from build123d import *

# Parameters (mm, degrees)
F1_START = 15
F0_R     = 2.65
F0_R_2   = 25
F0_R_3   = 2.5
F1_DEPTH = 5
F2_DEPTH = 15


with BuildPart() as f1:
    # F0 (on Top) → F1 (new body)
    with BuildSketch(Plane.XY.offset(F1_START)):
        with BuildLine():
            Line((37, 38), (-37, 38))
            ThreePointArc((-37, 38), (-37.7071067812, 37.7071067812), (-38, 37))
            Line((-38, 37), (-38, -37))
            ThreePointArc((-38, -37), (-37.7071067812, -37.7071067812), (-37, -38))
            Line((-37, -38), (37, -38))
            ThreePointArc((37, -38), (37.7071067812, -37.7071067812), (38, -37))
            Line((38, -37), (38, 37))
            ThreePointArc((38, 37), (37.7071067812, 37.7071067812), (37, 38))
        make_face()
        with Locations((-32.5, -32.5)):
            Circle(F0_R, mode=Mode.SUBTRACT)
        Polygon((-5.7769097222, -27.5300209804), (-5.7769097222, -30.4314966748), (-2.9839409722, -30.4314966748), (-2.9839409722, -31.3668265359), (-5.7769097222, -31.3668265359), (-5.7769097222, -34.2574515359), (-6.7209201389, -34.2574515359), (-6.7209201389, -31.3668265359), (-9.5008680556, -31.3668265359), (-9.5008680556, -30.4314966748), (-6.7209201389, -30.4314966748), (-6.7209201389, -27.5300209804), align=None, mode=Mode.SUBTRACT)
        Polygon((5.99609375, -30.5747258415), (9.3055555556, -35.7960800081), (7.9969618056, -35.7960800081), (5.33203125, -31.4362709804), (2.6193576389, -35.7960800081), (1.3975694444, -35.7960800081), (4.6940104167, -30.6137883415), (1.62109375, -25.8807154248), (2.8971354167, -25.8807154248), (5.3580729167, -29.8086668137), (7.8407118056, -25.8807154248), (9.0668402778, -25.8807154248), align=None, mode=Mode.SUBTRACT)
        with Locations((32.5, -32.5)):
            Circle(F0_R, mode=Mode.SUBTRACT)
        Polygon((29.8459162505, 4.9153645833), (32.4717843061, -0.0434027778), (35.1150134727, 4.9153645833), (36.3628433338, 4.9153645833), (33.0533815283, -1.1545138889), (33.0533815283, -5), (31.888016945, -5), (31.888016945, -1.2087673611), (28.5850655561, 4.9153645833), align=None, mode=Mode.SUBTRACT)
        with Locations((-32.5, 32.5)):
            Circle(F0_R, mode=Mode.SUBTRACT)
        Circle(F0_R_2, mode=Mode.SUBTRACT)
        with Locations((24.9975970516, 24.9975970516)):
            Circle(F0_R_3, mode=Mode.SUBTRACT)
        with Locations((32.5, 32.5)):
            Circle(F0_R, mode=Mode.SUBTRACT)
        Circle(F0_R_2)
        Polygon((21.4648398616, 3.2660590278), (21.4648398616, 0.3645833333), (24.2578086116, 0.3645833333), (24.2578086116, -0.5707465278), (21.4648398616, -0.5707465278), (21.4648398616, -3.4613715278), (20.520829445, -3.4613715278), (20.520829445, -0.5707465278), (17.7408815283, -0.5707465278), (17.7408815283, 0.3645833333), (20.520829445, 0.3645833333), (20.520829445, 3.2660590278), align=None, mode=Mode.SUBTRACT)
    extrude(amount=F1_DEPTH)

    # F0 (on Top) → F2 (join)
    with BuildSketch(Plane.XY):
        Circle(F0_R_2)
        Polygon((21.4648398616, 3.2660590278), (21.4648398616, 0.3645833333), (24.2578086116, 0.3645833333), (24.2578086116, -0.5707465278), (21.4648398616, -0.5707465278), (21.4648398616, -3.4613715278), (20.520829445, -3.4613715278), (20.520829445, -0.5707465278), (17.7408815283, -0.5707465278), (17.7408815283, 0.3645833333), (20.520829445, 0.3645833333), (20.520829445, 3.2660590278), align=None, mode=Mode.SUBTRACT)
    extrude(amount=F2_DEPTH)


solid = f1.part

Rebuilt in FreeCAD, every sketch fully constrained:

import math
import FreeCAD as App
import Part
import Sketcher
Q = App.Units.Quantity

doc = App.newDocument("Part")
body = doc.addObject("PartDesign::Body", "Body")

sketch1 = body.newObject("Sketcher::SketchObject", "Sketch")
sketch1.AttachmentSupport = (doc.getObject("XY_Plane"), [""])
sketch1.MapMode = "FlatFace"
sketch1.AttachmentOffset = App.Placement(App.Vector(0, 0, 15), App.Rotation())
sketch1.addGeometry([
    Part.LineSegment(App.Vector(37, 38, 0), App.Vector(-37, 38, 0)),
    Part.ArcOfCircle(Part.Circle(App.Vector(-37, 37, 0), App.Vector(0, 0, 1), 1), math.radians(90), math.radians(180)),
    Part.LineSegment(App.Vector(-38, 37, 0), App.Vector(-38, -37, 0)),
    Part.ArcOfCircle(Part.Circle(App.Vector(-37, -37, 0), App.Vector(0, 0, 1), 1), math.radians(180), math.radians(270)),
    Part.LineSegment(App.Vector(-37, -38, 0), App.Vector(37, -38, 0)),
    Part.ArcOfCircle(Part.Circle(App.Vector(37, -37, 0), App.Vector(0, 0, 1), 1), math.radians(-90), math.radians(0)),
    Part.LineSegment(App.Vector(38, -37, 0), App.Vector(38, 37, 0)),
    Part.ArcOfCircle(Part.Circle(App.Vector(37, 37, 0), App.Vector(0, 0, 1), 1), math.radians(0), math.radians(90)),
    Part.Circle(App.Vector(-32.5, -32.5, 0), App.Vector(0, 0, 1), 2.65),
    Part.LineSegment(App.Vector(-6.72092, -27.530021, 0), App.Vector(-5.77691, -27.530021, 0)),
    Part.LineSegment(App.Vector(-5.77691, -27.530021, 0), App.Vector(-5.77691, -30.431497, 0)),
    Part.LineSegment(App.Vector(-5.77691, -30.431497, 0), App.Vector(-2.983941, -30.431497, 0)),
    Part.LineSegment(App.Vector(-2.983941, -30.431497, 0), App.Vector(-2.983941, -31.366827, 0)),
    Part.LineSegment(App.Vector(-2.983941, -31.366827, 0), App.Vector(-5.77691, -31.366827, 0)),
    Part.LineSegment(App.Vector(-5.77691, -31.366827, 0), App.Vector(-5.77691, -34.257452, 0)),
    Part.LineSegment(App.Vector(-5.77691, -34.257452, 0), App.Vector(-6.72092, -34.257452, 0)),
    Part.LineSegment(App.Vector(-6.72092, -34.257452, 0), App.Vector(-6.72092, -31.366827, 0)),
    Part.LineSegment(App.Vector(-6.72092, -31.366827, 0), App.Vector(-9.500868, -31.366827, 0)),
    Part.LineSegment(App.Vector(-9.500868, -31.366827, 0), App.Vector(-9.500868, -30.431497, 0)),
    Part.LineSegment(App.Vector(-9.500868, -30.431497, 0), App.Vector(-6.72092, -30.431497, 0)),
    Part.LineSegment(App.Vector(-6.72092, -30.431497, 0), App.Vector(-6.72092, -27.530021, 0)),
    Part.LineSegment(App.Vector(9.06684, -25.880715, 0), App.Vector(5.996094, -30.574726, 0)),
    Part.LineSegment(App.Vector(5.996094, -30.574726, 0), App.Vector(9.305556, -35.79608, 0)),
    Part.LineSegment(App.Vector(9.305556, -35.79608, 0), App.Vector(7.996962, -35.79608, 0)),
    Part.LineSegment(App.Vector(7.996962, -35.79608, 0), App.Vector(5.332031, -31.436271, 0)),
    Part.LineSegment(App.Vector(5.332031, -31.436271, 0), App.Vector(2.619358, -35.79608, 0)),
    Part.LineSegment(App.Vector(2.619358, -35.79608, 0), App.Vector(1.397569, -35.79608, 0)),
    Part.LineSegment(App.Vector(1.397569, -35.79608, 0), App.Vector(4.69401, -30.613788, 0)),
    Part.LineSegment(App.Vector(4.69401, -30.613788, 0), App.Vector(1.621094, -25.880715, 0)),
    Part.LineSegment(App.Vector(1.621094, -25.880715, 0), App.Vector(2.897135, -25.880715, 0)),
    Part.LineSegment(App.Vector(2.897135, -25.880715, 0), App.Vector(5.358073, -29.808667, 0)),
    Part.LineSegment(App.Vector(5.358073, -29.808667, 0), App.Vector(7.840712, -25.880715, 0)),
    Part.LineSegment(App.Vector(7.840712, -25.880715, 0), App.Vector(9.06684, -25.880715, 0)),
    Part.Circle(App.Vector(32.5, -32.5, 0), App.Vector(0, 0, 1), 2.65),
    Part.Circle(App.Vector(-32.5, 32.5, 0), App.Vector(0, 0, 1), 2.65),
    Part.LineSegment(App.Vector(20.520829, 3.266059, 0), App.Vector(21.46484, 3.266059, 0)),
    Part.LineSegment(App.Vector(21.46484, 3.266059, 0), App.Vector(21.46484, 0.364583, 0)),
    Part.LineSegment(App.Vector(21.46484, 0.364583, 0), App.Vector(24.257809, 0.364583, 0)),
    Part.LineSegment(App.Vector(24.257809, 0.364583, 0), App.Vector(24.257809, -0.570747, 0)),
    Part.LineSegment(App.Vector(24.257809, -0.570747, 0), App.Vector(21.46484, -0.570747, 0)),
    Part.LineSegment(App.Vector(21.46484, -0.570747, 0), App.Vector(21.46484, -3.461372, 0)),
    Part.LineSegment(App.Vector(21.46484, -3.461372, 0), App.Vector(20.520829, -3.461372, 0)),
    Part.LineSegment(App.Vector(20.520829, -3.461372, 0), App.Vector(20.520829, -0.570747, 0)),
    Part.LineSegment(App.Vector(20.520829, -0.570747, 0), App.Vector(17.740882, -0.570747, 0)),
    Part.LineSegment(App.Vector(17.740882, -0.570747, 0), App.Vector(17.740882, 0.364583, 0)),
    Part.LineSegment(App.Vector(17.740882, 0.364583, 0), App.Vector(20.520829, 0.364583, 0)),
    Part.LineSegment(App.Vector(20.520829, 0.364583, 0), App.Vector(20.520829, 3.266059, 0)),
    Part.LineSegment(App.Vector(28.585066, 4.915365, 0), App.Vector(29.845916, 4.915365, 0)),
    Part.LineSegment(App.Vector(29.845916, 4.915365, 0), App.Vector(32.471784, -0.043403, 0)),
    Part.LineSegment(App.Vector(32.471784, -0.043403, 0), App.Vector(35.115013, 4.915365, 0)),
    Part.LineSegment(App.Vector(35.115013, 4.915365, 0), App.Vector(36.362843, 4.915365, 0)),
    Part.LineSegment(App.Vector(36.362843, 4.915365, 0), App.Vector(33.053382, -1.154514, 0)),
    Part.LineSegment(App.Vector(33.053382, -1.154514, 0), App.Vector(33.053382, -5, 0)),
    Part.LineSegment(App.Vector(33.053382, -5, 0), App.Vector(31.888017, -5, 0)),
    Part.LineSegment(App.Vector(31.888017, -5, 0), App.Vector(31.888017, -1.208767, 0)),
    Part.LineSegment(App.Vector(31.888017, -1.208767, 0), App.Vector(28.585066, 4.915365, 0)),
    Part.Circle(App.Vector(24.997597, 24.997597, 0), App.Vector(0, 0, 1), 2.5),
    Part.Circle(App.Vector(32.5, 32.5, 0), App.Vector(0, 0, 1), 2.65),
], False)
sketch1.addConstraint([
    Sketcher.Constraint("Tangent", 0, 2, 1, 1),
    Sketcher.Constraint("Tangent", 1, 2, 2, 1),
    Sketcher.Constraint("Tangent", 2, 2, 3, 1),
    Sketcher.Constraint("Tangent", 3, 2, 4, 1),
    Sketcher.Constraint("Tangent", 4, 2, 5, 1),
    Sketcher.Constraint("Tangent", 5, 2, 6, 1),
    Sketcher.Constraint("Tangent", 6, 2, 7, 1),
    Sketcher.Constraint("Tangent", 7, 2, 0, 1),
    Sketcher.Constraint("Coincident", 9, 2, 10, 1),
    Sketcher.Constraint("Coincident", 10, 2, 11, 1),
    Sketcher.Constraint("Coincident", 11, 2, 12, 1),
    Sketcher.Constraint("Coincident", 12, 2, 13, 1),
    Sketcher.Constraint("Coincident", 13, 2, 14, 1),
    Sketcher.Constraint("Coincident", 14, 2, 15, 1),
    Sketcher.Constraint("Coincident", 15, 2, 16, 1),
    Sketcher.Constraint("Coincident", 16, 2, 17, 1),
    Sketcher.Constraint("Coincident", 17, 2, 18, 1),
    Sketcher.Constraint("Coincident", 18, 2, 19, 1),
    Sketcher.Constraint("Coincident", 19, 2, 20, 1),
    Sketcher.Constraint("Coincident", 20, 2, 9, 1),
    Sketcher.Constraint("Coincident", 21, 2, 22, 1),
    Sketcher.Constraint("Coincident", 22, 2, 23, 1),
    Sketcher.Constraint("Coincident", 23, 2, 24, 1),
    Sketcher.Constraint("Coincident", 24, 2, 25, 1),
    Sketcher.Constraint("Coincident", 25, 2, 26, 1),
    Sketcher.Constraint("Coincident", 26, 2, 27, 1),
    Sketcher.Constraint("Coincident", 27, 2, 28, 1),
    Sketcher.Constraint("Coincident", 28, 2, 29, 1),
    Sketcher.Constraint("Coincident", 29, 2, 30, 1),
    Sketcher.Constraint("Coincident", 30, 2, 31, 1),
    Sketcher.Constraint("Coincident", 31, 2, 32, 1),
    Sketcher.Constraint("Coincident", 32, 2, 21, 1),
    Sketcher.Constraint("Coincident", 35, 2, 36, 1),
    Sketcher.Constraint("Coincident", 36, 2, 37, 1),
    Sketcher.Constraint("Coincident", 37, 2, 38, 1),
    Sketcher.Constraint("Coincident", 38, 2, 39, 1),
    Sketcher.Constraint("Coincident", 39, 2, 40, 1),
    Sketcher.Constraint("Coincident", 40, 2, 41, 1),
    Sketcher.Constraint("Coincident", 41, 2, 42, 1),
    Sketcher.Constraint("Coincident", 42, 2, 43, 1),
    Sketcher.Constraint("Coincident", 43, 2, 44, 1),
    Sketcher.Constraint("Coincident", 44, 2, 45, 1),
    Sketcher.Constraint("Coincident", 45, 2, 46, 1),
    Sketcher.Constraint("Coincident", 46, 2, 35, 1),
    Sketcher.Constraint("Coincident", 47, 2, 48, 1),
    Sketcher.Constraint("Coincident", 48, 2, 49, 1),
    Sketcher.Constraint("Coincident", 49, 2, 50, 1),
    Sketcher.Constraint("Coincident", 50, 2, 51, 1),
    Sketcher.Constraint("Coincident", 51, 2, 52, 1),
    Sketcher.Constraint("Coincident", 52, 2, 53, 1),
    Sketcher.Constraint("Coincident", 53, 2, 54, 1),
    Sketcher.Constraint("Coincident", 54, 2, 55, 1),
    Sketcher.Constraint("Coincident", 55, 2, 47, 1),
    Sketcher.Constraint("Horizontal", 0),
    Sketcher.Constraint("Vertical", 2),
    Sketcher.Constraint("Horizontal", 4),
    Sketcher.Constraint("Vertical", 6),
    Sketcher.Constraint("Horizontal", 9),
    Sketcher.Constraint("Vertical", 10),
    Sketcher.Constraint("Horizontal", 11),
    Sketcher.Constraint("Vertical", 12),
    Sketcher.Constraint("Horizontal", 13),
    Sketcher.Constraint("Vertical", 14),
    Sketcher.Constraint("Horizontal", 15),
    Sketcher.Constraint("Vertical", 16),
    Sketcher.Constraint("Horizontal", 17),
    Sketcher.Constraint("Vertical", 18),
    Sketcher.Constraint("Horizontal", 19),
    Sketcher.Constraint("Vertical", 20),
    Sketcher.Constraint("Horizontal", 23),
    Sketcher.Constraint("Horizontal", 26),
    Sketcher.Constraint("Horizontal", 29),
    Sketcher.Constraint("Horizontal", 32),
    Sketcher.Constraint("Horizontal", 35),
    Sketcher.Constraint("Vertical", 36),
    Sketcher.Constraint("Horizontal", 37),
    Sketcher.Constraint("Vertical", 38),
    Sketcher.Constraint("Horizontal", 39),
    Sketcher.Constraint("Vertical", 40),
    Sketcher.Constraint("Horizontal", 41),
    Sketcher.Constraint("Vertical", 42),
    Sketcher.Constraint("Horizontal", 43),
    Sketcher.Constraint("Vertical", 44),
    Sketcher.Constraint("Horizontal", 45),
    Sketcher.Constraint("Vertical", 46),
    Sketcher.Constraint("Horizontal", 47),
    Sketcher.Constraint("Horizontal", 50),
    Sketcher.Constraint("Vertical", 52),
    Sketcher.Constraint("Horizontal", 53),
    Sketcher.Constraint("Vertical", 54),
    Sketcher.Constraint("Equal", 1, 3),
    Sketcher.Constraint("Equal", 3, 5),
    Sketcher.Constraint("Equal", 5, 7),
    Sketcher.Constraint("Equal", 8, 33),
    Sketcher.Constraint("Equal", 33, 34),
    Sketcher.Constraint("Equal", 34, 57),
    Sketcher.Constraint("Symmetric", 1, 3, 5, 3, -1, 1),
    Sketcher.Constraint("Symmetric", 33, 3, 34, 3, -1, 1),
    Sketcher.Constraint("Symmetric", 8, 3, 57, 3, -1, 1),
    Sketcher.Constraint("Symmetric", 8, 3, 33, 3, -2),
    Sketcher.Constraint("Horizontal", 13, 2, 16, 2),
    Sketcher.Constraint("Horizontal", 11, 2, 18, 2),
    Sketcher.Constraint("Horizontal", 23, 2, 25, 2),
    Sketcher.Constraint("Horizontal", 29, 2, 31, 2),
    Sketcher.Constraint("Horizontal", 39, 2, 42, 2),
    Sketcher.Constraint("Horizontal", 37, 2, 44, 2),
    Sketcher.Constraint("Horizontal", 47, 2, 49, 2),
    Sketcher.Constraint("Vertical", 10, 2, 13, 2),
    Sketcher.Constraint("Vertical", 16, 2, 19, 2),
    Sketcher.Constraint("Vertical", 36, 2, 39, 2),
    Sketcher.Constraint("Vertical", 42, 2, 45, 2),
    Sketcher.Constraint("Equal", 15, 35),
    Sketcher.Constraint("Equal", 13, 37),
    Sketcher.Constraint("Equal", 19, 43),
    Sketcher.Constraint("Equal", 4, 2),
    Sketcher.Constraint("Equal", 20, 36),
    Sketcher.Constraint("Equal", 18, 38),
    Sketcher.Constraint("Equal", 16, 40),
    Sketcher.Constraint("Diameter", 56, Q("5 mm")),
    Sketcher.Constraint("Radius", 1, Q("1 mm")),
    Sketcher.Constraint("Diameter", 8, Q("5.3 mm")),
    Sketcher.Constraint("DistanceX", 0, 2, 0, 1, Q("74 mm")),
    Sketcher.Constraint("DistanceY", 52, 2, -1, 1, Q("5 mm")),
    Sketcher.Constraint("DistanceX", 8, 3, -1, 1, Q("32.5 mm")),
    Sketcher.Constraint("DistanceY", 8, 3, -1, 1, Q("32.5 mm")),
    Sketcher.Constraint("DistanceX", 9, 1, 9, 2, Q("0.94401 mm")),
    Sketcher.Constraint("DistanceX", 11, 1, 11, 2, Q("2.792969 mm")),
    Sketcher.Constraint("DistanceX", 26, 2, 26, 1, Q("1.221788 mm")),
    Sketcher.Constraint("DistanceX", 29, 1, 29, 2, Q("1.276042 mm")),
    Sketcher.Constraint("DistanceX", 32, 1, 32, 2, Q("1.226128 mm")),
    Sketcher.Constraint("DistanceX", 47, 1, 47, 2, Q("1.260851 mm")),
    Sketcher.Constraint("DistanceX", 50, 1, 50, 2, Q("1.24783 mm")),
    Sketcher.Constraint("DistanceY", 12, 2, 12, 1, Q("0.93533 mm")),
    Sketcher.Constraint("Distance", 21, Q("5.609208 mm")),
    Sketcher.Constraint("Distance", 27, Q("6.141878 mm")),
    Sketcher.Constraint("Distance", 28, Q("5.643119 mm")),
    Sketcher.Constraint("Distance", 31, Q("4.646751 mm")),
    Sketcher.Constraint("Distance", 48, Q("5.61111 mm")),
    Sketcher.Constraint("Distance", 55, Q("6.958051 mm")),
    Sketcher.Constraint("DistanceX", 17, 2, 17, 1, Q("2.779948 mm")),
    Sketcher.Constraint("DistanceX", 23, 2, 23, 1, Q("1.308594 mm")),
    Sketcher.Constraint("DistanceX", 53, 2, 53, 1, Q("1.165365 mm")),
    Sketcher.Constraint("DistanceY", 10, 2, 10, 1, Q("2.901476 mm")),
    Sketcher.Constraint("DistanceY", 14, 2, 14, 1, Q("2.890625 mm")),
    Sketcher.Constraint("DistanceY", 52, 2, 52, 1, Q("3.845486 mm")),
    Sketcher.Constraint("DistanceY", 54, 1, 54, 2, Q("3.791233 mm")),
    Sketcher.Constraint("DistanceX", 9, 2, -1, 1, Q("5.77691 mm")),
    Sketcher.Constraint("DistanceY", 9, 2, -1, 1, Q("27.530021 mm")),
    Sketcher.Constraint("DistanceY", 22, 2, -1, 1, Q("35.79608 mm")),
    Sketcher.Constraint("DistanceX", -1, 1, 23, 2, Q("7.996962 mm")),
    Sketcher.Constraint("DistanceX", -1, 1, 24, 2, Q("5.332031 mm")),
    Sketcher.Constraint("DistanceY", 24, 2, -1, 1, Q("31.436271 mm")),
    Sketcher.Constraint("DistanceX", -1, 1, 26, 2, Q("1.397569 mm")),
    Sketcher.Constraint("DistanceX", -1, 1, 27, 2, Q("4.69401 mm")),
    Sketcher.Constraint("DistanceX", -1, 1, 31, 2, Q("7.840712 mm")),
    Sketcher.Constraint("DistanceX", -1, 1, 35, 2, Q("21.46484 mm")),
    Sketcher.Constraint("DistanceY", -1, 1, 35, 2, Q("3.266059 mm")),
    Sketcher.Constraint("DistanceX", -1, 1, 51, 2, Q("33.053382 mm")),
    Sketcher.Constraint("Distance", 22, Q("6.181834 mm")),
    Sketcher.Constraint("Distance", 30, Q("4.635193 mm")),
    Sketcher.Constraint("Distance", 49, Q("5.619256 mm")),
    Sketcher.Constraint("Distance", 51, Q("6.913462 mm")),
    Sketcher.Constraint("DistanceX", -1, 1, 56, 3, Q("24.997597 mm")),
    Sketcher.Constraint("DistanceY", -1, 1, 56, 3, Q("24.997597 mm")),
    Sketcher.Constraint("DistanceX", -1, 1, 21, 2, Q("5.996094 mm")),
    Sketcher.Constraint("DistanceX", -1, 1, 47, 2, Q("29.845916 mm")),
])
pad1 = body.newObject("PartDesign::Pad", "Pad")
pad1.Profile = sketch1
pad1.Length = 5

sketch2 = body.newObject("Sketcher::SketchObject", "Sketch001")
sketch2.AttachmentSupport = (doc.getObject("XY_Plane"), [""])
sketch2.MapMode = "FlatFace"
sketch2.addGeometry([
    Part.Circle(App.Vector(0, 0, 0), App.Vector(0, 0, 1), 25),
    Part.LineSegment(App.Vector(20.520829, 3.266059, 0), App.Vector(21.46484, 3.266059, 0)),
    Part.LineSegment(App.Vector(21.46484, 3.266059, 0), App.Vector(21.46484, 0.364583, 0)),
    Part.LineSegment(App.Vector(21.46484, 0.364583, 0), App.Vector(24.257809, 0.364583, 0)),
    Part.LineSegment(App.Vector(24.257809, 0.364583, 0), App.Vector(24.257809, -0.570747, 0)),
    Part.LineSegment(App.Vector(24.257809, -0.570747, 0), App.Vector(21.46484, -0.570747, 0)),
    Part.LineSegment(App.Vector(21.46484, -0.570747, 0), App.Vector(21.46484, -3.461372, 0)),
    Part.LineSegment(App.Vector(21.46484, -3.461372, 0), App.Vector(20.520829, -3.461372, 0)),
    Part.LineSegment(App.Vector(20.520829, -3.461372, 0), App.Vector(20.520829, -0.570747, 0)),
    Part.LineSegment(App.Vector(20.520829, -0.570747, 0), App.Vector(17.740882, -0.570747, 0)),
    Part.LineSegment(App.Vector(17.740882, -0.570747, 0), App.Vector(17.740882, 0.364583, 0)),
    Part.LineSegment(App.Vector(17.740882, 0.364583, 0), App.Vector(20.520829, 0.364583, 0)),
    Part.LineSegment(App.Vector(20.520829, 0.364583, 0), App.Vector(20.520829, 3.266059, 0)),
], False)
sketch2.addConstraint([
    Sketcher.Constraint("Coincident", 1, 2, 2, 1),
    Sketcher.Constraint("Coincident", 2, 2, 3, 1),
    Sketcher.Constraint("Coincident", 3, 2, 4, 1),
    Sketcher.Constraint("Coincident", 4, 2, 5, 1),
    Sketcher.Constraint("Coincident", 5, 2, 6, 1),
    Sketcher.Constraint("Coincident", 6, 2, 7, 1),
    Sketcher.Constraint("Coincident", 7, 2, 8, 1),
    Sketcher.Constraint("Coincident", 8, 2, 9, 1),
    Sketcher.Constraint("Coincident", 9, 2, 10, 1),
    Sketcher.Constraint("Coincident", 10, 2, 11, 1),
    Sketcher.Constraint("Coincident", 11, 2, 12, 1),
    Sketcher.Constraint("Coincident", 12, 2, 1, 1),
    Sketcher.Constraint("Horizontal", 1),
    Sketcher.Constraint("Vertical", 2),
    Sketcher.Constraint("Horizontal", 3),
    Sketcher.Constraint("Vertical", 4),
    Sketcher.Constraint("Horizontal", 5),
    Sketcher.Constraint("Vertical", 6),
    Sketcher.Constraint("Horizontal", 7),
    Sketcher.Constraint("Vertical", 8),
    Sketcher.Constraint("Horizontal", 9),
    Sketcher.Constraint("Vertical", 10),
    Sketcher.Constraint("Horizontal", 11),
    Sketcher.Constraint("Vertical", 12),
    Sketcher.Constraint("Coincident", 0, 3, -1, 1),
    Sketcher.Constraint("Horizontal", 5, 2, 8, 2),
    Sketcher.Constraint("Horizontal", 3, 2, 10, 2),
    Sketcher.Constraint("Vertical", 2, 2, 5, 2),
    Sketcher.Constraint("Vertical", 8, 2, 11, 2),
    Sketcher.Constraint("Diameter", 0, Q("50 mm")),
    Sketcher.Constraint("DistanceX", 1, 1, 1, 2, Q("0.94401 mm")),
    Sketcher.Constraint("DistanceX", 3, 1, 3, 2, Q("2.792969 mm")),
    Sketcher.Constraint("DistanceY", 4, 2, 4, 1, Q("0.93533 mm")),
    Sketcher.Constraint("DistanceX", 9, 2, 9, 1, Q("2.779948 mm")),
    Sketcher.Constraint("DistanceY", 2, 2, 2, 1, Q("2.901476 mm")),
    Sketcher.Constraint("DistanceY", 6, 2, 6, 1, Q("2.890625 mm")),
    Sketcher.Constraint("DistanceX", -1, 1, 1, 2, Q("21.46484 mm")),
    Sketcher.Constraint("DistanceY", -1, 1, 1, 2, Q("3.266059 mm")),
])
pad2 = body.newObject("PartDesign::Pad", "Pad001")
pad2.Profile = sketch2
pad2.Length = 15

doc.recompute()
